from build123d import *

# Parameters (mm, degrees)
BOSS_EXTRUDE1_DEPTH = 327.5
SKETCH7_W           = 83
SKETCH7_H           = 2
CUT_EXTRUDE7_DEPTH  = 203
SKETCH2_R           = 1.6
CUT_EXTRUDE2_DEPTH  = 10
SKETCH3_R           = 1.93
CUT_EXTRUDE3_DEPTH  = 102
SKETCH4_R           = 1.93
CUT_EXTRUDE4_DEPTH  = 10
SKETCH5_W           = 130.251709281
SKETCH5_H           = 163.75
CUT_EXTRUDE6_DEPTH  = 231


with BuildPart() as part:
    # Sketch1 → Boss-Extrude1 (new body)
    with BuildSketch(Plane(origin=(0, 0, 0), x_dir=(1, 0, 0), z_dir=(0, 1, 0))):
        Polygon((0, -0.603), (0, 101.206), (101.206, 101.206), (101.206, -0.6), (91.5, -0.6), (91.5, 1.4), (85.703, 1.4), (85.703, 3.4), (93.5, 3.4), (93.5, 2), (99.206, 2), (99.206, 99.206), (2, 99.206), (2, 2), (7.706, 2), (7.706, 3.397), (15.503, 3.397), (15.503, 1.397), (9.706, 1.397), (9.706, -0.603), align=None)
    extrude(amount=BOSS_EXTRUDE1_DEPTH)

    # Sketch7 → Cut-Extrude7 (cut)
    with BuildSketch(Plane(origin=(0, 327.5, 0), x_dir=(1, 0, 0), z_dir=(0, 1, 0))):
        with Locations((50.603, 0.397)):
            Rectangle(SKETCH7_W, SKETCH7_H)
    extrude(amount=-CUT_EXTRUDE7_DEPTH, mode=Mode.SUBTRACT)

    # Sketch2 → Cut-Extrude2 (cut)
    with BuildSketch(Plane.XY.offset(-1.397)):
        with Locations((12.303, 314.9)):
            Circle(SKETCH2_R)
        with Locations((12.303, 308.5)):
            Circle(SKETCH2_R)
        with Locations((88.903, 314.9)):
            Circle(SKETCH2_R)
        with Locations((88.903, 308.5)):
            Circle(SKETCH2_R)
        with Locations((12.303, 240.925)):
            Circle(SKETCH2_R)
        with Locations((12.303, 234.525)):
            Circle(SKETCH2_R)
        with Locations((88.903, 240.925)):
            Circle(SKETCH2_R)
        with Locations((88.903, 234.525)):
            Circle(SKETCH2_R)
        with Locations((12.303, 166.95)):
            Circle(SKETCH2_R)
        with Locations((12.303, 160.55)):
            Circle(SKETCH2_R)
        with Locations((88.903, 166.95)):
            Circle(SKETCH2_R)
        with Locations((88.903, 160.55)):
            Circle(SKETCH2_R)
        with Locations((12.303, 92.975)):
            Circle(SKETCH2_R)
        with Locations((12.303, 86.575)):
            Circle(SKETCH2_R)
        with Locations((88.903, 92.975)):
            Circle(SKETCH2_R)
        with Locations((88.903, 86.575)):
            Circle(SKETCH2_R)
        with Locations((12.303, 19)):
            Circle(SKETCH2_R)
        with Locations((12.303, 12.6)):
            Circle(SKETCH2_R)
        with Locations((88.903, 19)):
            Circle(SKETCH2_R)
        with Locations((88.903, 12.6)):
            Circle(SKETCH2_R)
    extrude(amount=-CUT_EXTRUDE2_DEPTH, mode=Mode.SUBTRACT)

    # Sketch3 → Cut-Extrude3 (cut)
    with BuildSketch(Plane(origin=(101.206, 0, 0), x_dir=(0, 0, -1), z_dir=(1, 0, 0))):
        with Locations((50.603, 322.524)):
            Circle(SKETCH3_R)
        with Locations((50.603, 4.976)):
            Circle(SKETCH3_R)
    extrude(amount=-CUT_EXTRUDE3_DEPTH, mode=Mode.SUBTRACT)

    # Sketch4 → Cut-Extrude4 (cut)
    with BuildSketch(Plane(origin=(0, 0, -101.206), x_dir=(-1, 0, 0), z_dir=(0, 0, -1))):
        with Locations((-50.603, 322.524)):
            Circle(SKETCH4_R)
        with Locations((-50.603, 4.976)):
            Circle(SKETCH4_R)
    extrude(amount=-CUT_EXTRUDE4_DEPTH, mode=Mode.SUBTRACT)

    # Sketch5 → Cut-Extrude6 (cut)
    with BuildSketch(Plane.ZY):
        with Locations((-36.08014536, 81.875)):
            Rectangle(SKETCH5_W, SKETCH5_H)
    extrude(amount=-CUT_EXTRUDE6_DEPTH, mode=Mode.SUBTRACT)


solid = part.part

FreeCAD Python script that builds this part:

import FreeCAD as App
import Part
import Sketcher

V = App.Vector

doc = App.newDocument("Part")
params = doc.addObject("Spreadsheet::Sheet", "Params")
for row, (alias, value) in enumerate([
    ("sketch1_height", "2 mm"),
    ("sketch1_height2", "1.4 mm"),
    ("pad1_length", "327.5 mm"),
    ("sketch2_width", "83 mm"),
    ("sketch2_height", "2 mm"),
    ("pocket1_length", "203 mm"),
    ("sketch3_diameter", "3.2 mm"),
    ("pocket2_length", "10 mm"),
    ("sketch4_diameter", "3.86 mm"),
    ("pocket3_length", "102 mm"),
    ("sketch5_diameter", "3.86 mm"),
    ("pocket4_length", "10 mm"),
    ("sketch6_width", "163.75 mm"),
    ("pocket5_length", "231 mm"),
], start=1):
    params.set(f"A{row}", alias)
    params.set(f"B{row}", "=" + value)
    params.setAlias(f"B{row}", alias)

body = doc.addObject("PartDesign::Body", "Body")

# Sketch on XZ plane
sketch1 = body.newObject("Sketcher::SketchObject", "Sketch")
sketch1.AttachmentSupport = (doc.getObject("XZ_Plane"), [""])
sketch1.MapMode = "FlatFace"
sketch1.addGeometry([
    Part.LineSegment(V(0, -101.206, 0), V(0, 0.603, 0)),  # 0
    Part.LineSegment(V(0, 0.603, 0), V(9.706, 0.603, 0)),  # 1
    Part.LineSegment(V(9.706, 0.603, 0), V(9.706, -1.397, 0)),  # 2
    Part.LineSegment(V(9.706, -1.397, 0), V(15.503, -1.397, 0)),  # 3
    Part.LineSegment(V(15.503, -1.397, 0), V(15.503, -3.397, 0)),  # 4
    Part.LineSegment(V(15.503, -3.397, 0), V(7.706, -3.397, 0)),  # 5
    Part.LineSegment(V(7.706, -3.397, 0), V(7.706, -2, 0)),  # 6
    Part.LineSegment(V(7.706, -2, 0), V(2, -2, 0)),  # 7
    Part.LineSegment(V(2, -2, 0), V(2, -99.206, 0)),  # 8
    Part.LineSegment(V(2, -99.206, 0), V(99.206, -99.206, 0)),  # 9
    Part.LineSegment(V(99.206, -99.206, 0), V(99.206, -2, 0)),  # 10
    Part.LineSegment(V(99.206, -2, 0), V(93.5, -2, 0)),  # 11
    Part.LineSegment(V(93.5, -2, 0), V(93.5, -3.4, 0)),  # 12
    Part.LineSegment(V(93.5, -3.4, 0), V(85.703, -3.4, 0)),  # 13
    Part.LineSegment(V(85.703, -3.4, 0), V(85.703, -1.4, 0)),  # 14
    Part.LineSegment(V(85.703, -1.4, 0), V(91.5, -1.4, 0)),  # 15
    Part.LineSegment(V(91.5, -1.4, 0), V(91.5, 0.6, 0)),  # 16
    Part.LineSegment(V(91.5, 0.6, 0), V(101.206, 0.6, 0)),  # 17
    Part.LineSegment(V(101.206, 0.6, 0), V(101.206, -101.206, 0)),  # 18
    Part.LineSegment(V(101.206, -101.206, 0), V(0, -101.206, 0)),  # 19
], False)
sketch1.addConstraint([
    Sketcher.Constraint("Coincident", 0, 2, 1, 1),
    Sketcher.Constraint("Coincident", 1, 2, 2, 1),
    Sketcher.Constraint("Coincident", 2, 2, 3, 1),
    Sketcher.Constraint("Coincident", 3, 2, 4, 1),
    Sketcher.Constraint("Coincident", 4, 2, 5, 1),
    Sketcher.Constraint("Coincident", 5, 2, 6, 1),
    Sketcher.Constraint("Coincident", 6, 2, 7, 1),
    Sketcher.Constraint("Coincident", 7, 2, 8, 1),
    Sketcher.Constraint("Coincident", 8, 2, 9, 1),
    Sketcher.Constraint("Coincident", 9, 2, 10, 1),
    Sketcher.Constraint("Coincident", 10, 2, 11, 1),
    Sketcher.Constraint("Coincident", 11, 2, 12, 1),
    Sketcher.Constraint("Coincident", 12, 2, 13, 1),
    Sketcher.Constraint("Coincident", 13, 2, 14, 1),
    Sketcher.Constraint("Coincident", 14, 2, 15, 1),
    Sketcher.Constraint("Coincident", 15, 2, 16, 1),
    Sketcher.Constraint("Coincident", 16, 2, 17, 1),
    Sketcher.Constraint("Coincident", 17, 2, 18, 1),
    Sketcher.Constraint("Coincident", 18, 2, 19, 1),
    Sketcher.Constraint("Coincident", 19, 2, 0, 1),
    Sketcher.Constraint("Vertical", 0),
    Sketcher.Constraint("Horizontal", 1),
    Sketcher.Constraint("Vertical", 2),
    Sketcher.Constraint("Horizontal", 3),
    Sketcher.Constraint("Vertical", 4),
    Sketcher.Constraint("Horizontal", 5),
    Sketcher.Constraint("Vertical", 6),
    Sketcher.Constraint("Horizontal", 7),
    Sketcher.Constraint("Vertical", 8),
    Sketcher.Constraint("Horizontal", 9),
    Sketcher.Constraint("Vertical", 10),
    Sketcher.Constraint("Horizontal", 11),
    Sketcher.Constraint("Vertical", 12),
    Sketcher.Constraint("Horizontal", 13),
    Sketcher.Constraint("Vertical", 14),
    Sketcher.Constraint("Horizontal", 15),
    Sketcher.Constraint("Vertical", 16),
    Sketcher.Constraint("Horizontal", 17),
    Sketcher.Constraint("Vertical", 18),
    Sketcher.Constraint("Horizontal", 19),
    Sketcher.Constraint("PointOnObject", 0, 2, -2),
    Sketcher.Constraint("Horizontal", 7, 2, 10, 2),
    Sketcher.Constraint("Equal", 7, 11),
    Sketcher.Constraint("Equal", 5, 13),
    Sketcher.Constraint("Equal", 3, 15),
    Sketcher.Constraint("Equal", 1, 17),
    Sketcher.Constraint("Equal", 2, 4),
    Sketcher.Constraint("Equal", 9, 8),
    Sketcher.Constraint("Equal", 4, 14),
    Sketcher.Constraint("Equal", 14, 16),
    Sketcher.Constraint("DistanceY", 2, 2, 2, 1, 2.0),
    Sketcher.Constraint("DistanceY", 12, 2, 12, 1, 1.4),
    Sketcher.Constraint("DistanceY", 6, 2, -1, 1, 2.0),
    Sketcher.Constraint("DistanceX", -1, 1, 7, 2, 2.0),
    Sketcher.Constraint("DistanceX", 5, 2, 2, 2, 2.0),
    Sketcher.Constraint("DistanceY", 18, 2, 9, 2, 2.0),
    Sketcher.Constraint("DistanceX", -1, 1, 11, 2, 93.5),
    Sketcher.Constraint("DistanceX", 4, 2, 13, 2, 70.2),
    Sketcher.Constraint("DistanceX", 1, 1, 1, 2, 9.706),
    Sketcher.Constraint("DistanceY", 0, 1, 0, 2, 101.809),
])
sketch1.setExpression("Constraints[50]", "Params.sketch1_height")
sketch1.setExpression("Constraints[51]", "Params.sketch1_height2")
pad1 = body.newObject("PartDesign::Pad", "Pad")
pad1.Profile = sketch1
pad1.setExpression("Length", "Params.pad1_length")
pad1.Reversed = True

# Sketch on XZ plane
sketch2 = body.newObject("Sketcher::SketchObject", "Sketch001")
sketch2.AttachmentSupport = (doc.getObject("XZ_Plane"), [""])
sketch2.MapMode = "FlatFace"
sketch2.AttachmentOffset = App.Placement(V(0, 0, -327.5), App.Rotation())
sketch2.addGeometry([
    Part.LineSegment(V(9.103, -1.397, 0), V(9.103, 0.603, 0)),
    Part.LineSegment(V(9.103, 0.603, 0), V(92.103, 0.603, 0)),
    Part.LineSegment(V(92.103, 0.603, 0), V(92.103, -1.397, 0)),
    Part.LineSegment(V(92.103, -1.397, 0), V(9.103, -1.397, 0)),
], False)
sketch2.addConstraint([
    Sketcher.Constraint("Coincident", 0, 2, 1, 1),
    Sketcher.Constraint("Coincident", 1, 2, 2, 1),
    Sketcher.Constraint("Coincident", 2, 2, 3, 1),
    Sketcher.Constraint("Coincident", 3, 2, 0, 1),
    Sketcher.Constraint("Vertical", 0),
    Sketcher.Constraint("Horizontal", 1),
    Sketcher.Constraint("Vertical", 2),
    Sketcher.Constraint("Horizontal", 3),
    Sketcher.Constraint("DistanceX", 1, 1, 1, 2, 83.0),
    Sketcher.Constraint("DistanceY", 0, 1, 0, 2, 2.0),
    Sketcher.Constraint("DistanceX", -1, 1, 0, 2, 9.103),
    Sketcher.Constraint("DistanceY", -1, 1, 0, 2, 0.603),
])
sketch2.setExpression("Constraints[8]", "Params.sketch2_width")
sketch2.setExpression("Constraints[9]", "Params.sketch2_height")
pocket1 = body.newObject("PartDesign::Pocket", "Pocket")
pocket1.Profile = sketch2
pocket1.setExpression("Length", "Params.pocket1_length")
pocket1.Reversed = True

# Sketch on XY plane
sketch3 = body.newObject("Sketcher::SketchObject", "Sketch002")
sketch3.AttachmentSupport = (doc.getObject("XY_Plane"), [""])
sketch3.MapMode = "FlatFace"
sketch3.AttachmentOffset = App.Placement(V(0, 0, -1.397), App.Rotation())
sketch3.addGeometry([
    Part.Circle(V(12.303, 314.9, 0), V(0, 0, 1), 1.6),  # 0
    Part.Circle(V(12.303, 308.5, 0), V(0, 0, 1), 1.6),  # 1
    Part.Circle(V(88.903, 314.9, 0), V(0, 0, 1), 1.6),  # 2
    Part.Circle(V(88.903, 308.5, 0), V(0, 0, 1), 1.6),  # 3
    Part.Circle(V(12.303, 240.925, 0), V(0, 0, 1), 1.6),  # 4
    Part.Circle(V(12.303, 234.525, 0), V(0, 0, 1), 1.6),  # 5
    Part.Circle(V(88.903, 240.925, 0), V(0, 0, 1), 1.6),  # 6
    Part.Circle(V(88.903, 234.525, 0), V(0, 0, 1), 1.6),  # 7
    Part.Circle(V(12.303, 166.95, 0), V(0, 0, 1), 1.6),  # 8
    Part.Circle(V(12.303, 160.55, 0), V(0, 0, 1), 1.6),  # 9
    Part.Circle(V(88.903, 166.95, 0), V(0, 0, 1), 1.6),  # 10
    Part.Circle(V(88.903, 160.55, 0), V(0, 0, 1), 1.6),  # 11
    Part.Circle(V(12.303, 92.975, 0), V(0, 0, 1), 1.6),  # 12
    Part.Circle(V(12.303, 86.575, 0), V(0, 0, 1), 1.6),  # 13
    Part.Circle(V(88.903, 92.975, 0), V(0, 0, 1), 1.6),  # 14
    Part.Circle(V(88.903, 86.575, 0), V(0, 0, 1), 1.6),  # 15
    Part.Circle(V(12.303, 19, 0), V(0, 0, 1), 1.6),  # 16
    Part.Circle(V(12.303, 12.6, 0), V(0, 0, 1), 1.6),  # 17
    Part.Circle(V(88.903, 19, 0), V(0, 0, 1), 1.6),  # 18
    Part.Circle(V(88.903, 12.6, 0), V(0, 0, 1), 1.6),  # 19
], False)
sketch3.addConstraint([
    Sketcher.Constraint("Equal", 0, 1),
    Sketcher.Constraint("Equal", 1, 2),
    Sketcher.Constraint("Equal", 2, 3),
    Sketcher.Constraint("Equal", 3, 4),
    Sketcher.Constraint("Equal", 4, 5),
    Sketcher.Constraint("Equal", 5, 6),
    Sketcher.Constraint("Equal", 6, 7),
    Sketcher.Constraint("Equal", 7, 8),
    Sketcher.Constraint("Equal", 8, 9),
    Sketcher.Constraint("Equal", 9, 10),
    Sketcher.Constraint("Equal", 10, 11),
    Sketcher.Constraint("Equal", 11, 12),
    Sketcher.Constraint("Equal", 12, 13),
    Sketcher.Constraint("Equal", 13, 14),
    Sketcher.Constraint("Equal", 14, 15),
    Sketcher.Constraint("Equal", 15, 16),
    Sketcher.Constraint("Equal", 16, 17),
    Sketcher.Constraint("Equal", 17, 18),
    Sketcher.Constraint("Equal", 18, 19),
    Sketcher.Constraint("Horizontal", 0, 3, 2, 3),
    Sketcher.Constraint("Horizontal", 1, 3, 3, 3),
    Sketcher.Constraint("Horizontal", 4, 3, 6, 3),
    Sketcher.Constraint("Horizontal", 5, 3, 7, 3),
    Sketcher.Constraint("Horizontal", 8, 3, 10, 3),
    Sketcher.Constraint("Horizontal", 9, 3, 11, 3),
    Sketcher.Constraint("Horizontal", 12, 3, 14, 3),
    Sketcher.Constraint("Horizontal", 13, 3, 15, 3),
    Sketcher.Constraint("Horizontal", 16, 3, 18, 3),
    Sketcher.Constraint("Horizontal", 17, 3, 19, 3),
    Sketcher.Constraint("Vertical", 0, 3, 1, 3),
    Sketcher.Constraint("Vertical", 2, 3, 3, 3),
    Sketcher.Constraint("Vertical", 1, 3, 4, 3),
    Sketcher.Constraint("Vertical", 4, 3, 5, 3),
    Sketcher.Constraint("Vertical", 3, 3, 6, 3),
    Sketcher.Constraint("Vertical", 6, 3, 7, 3),
    Sketcher.Constraint("Vertical", 5, 3, 8, 3),
    Sketcher.Constraint("Vertical", 8, 3, 9, 3),
    Sketcher.Constraint("Vertical", 7, 3, 10, 3),
    Sketcher.Constraint("Vertical", 10, 3, 11, 3),
    Sketcher.Constraint("Vertical", 9, 3, 12, 3),
    Sketcher.Constraint("Vertical", 12, 3, 13, 3),
    Sketcher.Constraint("Vertical", 11, 3, 14, 3),
    Sketcher.Constraint("Vertical", 14, 3, 15, 3),
    Sketcher.Constraint("Vertical", 13, 3, 16, 3),
    Sketcher.Constraint("Vertical", 16, 3, 17, 3),
    Sketcher.Constraint("Vertical", 15, 3, 18, 3),
    Sketcher.Constraint("Vertical", 18, 3, 19, 3),
    Sketcher.Constraint("Diameter", 0, 3.2),
    Sketcher.Constraint("DistanceY", -1, 1, 16, 3, 19.0),
    Sketcher.Constraint("DistanceY", -1, 1, 0, 3, 314.9),
    Sketcher.Constraint("DistanceY", -1, 1, 1, 3, 308.5),
    Sketcher.Constraint("DistanceY", -1, 1, 17, 3, 12.6),
    Sketcher.Constraint("DistanceX", 0, 3, 2, 3, 76.6),
    Sketcher.Constraint("DistanceY", 5, 3, 4, 3, 6.4),
    Sketcher.Constraint("DistanceY", 9, 3, 8, 3, 6.4),
    Sketcher.Constraint("DistanceY", 13, 3, 12, 3, 6.4),
    Sketcher.Constraint("DistanceY", -1, 1, 8, 3, 166.95),
    Sketcher.Constraint("DistanceY", 12, 3, 5, 3, 141.55),
    Sketcher.Constraint("DistanceX", -1, 1, 0, 3, 12.303),
    Sketcher.Constraint("DistanceY", -1, 1, 4, 3, 240.925),
])
sketch3.setExpression("Constraints[47]", "Params.sketch3_diameter")
pocket2 = body.newObject("PartDesign::Pocket", "Pocket001")
pocket2.Profile = sketch3
pocket2.setExpression("Length", "Params.pocket2_length")

# Sketch on YZ plane
sketch4 = body.newObject("Sketcher::SketchObject", "Sketch003")
sketch4.AttachmentSupport = (doc.getObject("YZ_Plane"), [""])
sketch4.MapMode = "FlatFace"
sketch4.AttachmentOffset = App.Placement(V(0, 0, 101.206), App.Rotation())
sketch4.addGeometry([
    Part.Circle(V(322.524, -50.603, 0), V(0, 0, 1), 1.93),
    Part.Circle(V(4.976, -50.603, 0), V(0, 0, 1), 1.93),
], False)
sketch4.addConstraint([
    Sketcher.Constraint("Equal", 0, 1),
    Sketcher.Constraint("Horizontal", 0, 3, 1, 3),
    Sketcher.Constraint("Diameter", 0, 3.86),
    Sketcher.Constraint("DistanceX", -1, 1, 0, 3, 322.524),
    Sketcher.Constraint("DistanceY", 0, 3, -1, 1, 50.603),
    Sketcher.Constraint("DistanceX", -1, 1, 1, 3, 4.976),
])
sketch4.setExpression("Constraints[2]", "Params.sketch4_diameter")
pocket3 = body.newObject("PartDesign::Pocket", "Pocket002")
pocket3.Profile = sketch4
pocket3.setExpression("Length", "Params.pocket3_length")

# Sketch on XY plane
sketch5 = body.newObject("Sketcher::SketchObject", "Sketch004")
sketch5.AttachmentSupport = (doc.getObject("XY_Plane"), [""])
sketch5.MapMode = "FlatFace"
sketch5.AttachmentOffset = App.Placement(V(0, 0, -101.206), App.Rotation())
sketch5.addGeometry([
    Part.Circle(V(50.603, 322.524, 0), V(0, 0, 1), 1.93),
    Part.Circle(V(50.603, 4.976, 0), V(0, 0, 1), 1.93),
], False)
sketch5.addConstraint([
    Sketcher.Constraint("Equal", 0, 1),
    Sketcher.Constraint("Vertical", 0, 3, 1, 3),
    Sketcher.Constraint("Diameter", 0, 3.86),
    Sketcher.Constraint("DistanceX", -1, 1, 0, 3, 50.603),
    Sketcher.Constraint("DistanceY", -1, 1, 0, 3, 322.524),
    Sketcher.Constraint("DistanceY", -1, 1, 1, 3, 4.976),
])
sketch5.setExpression("Constraints[2]", "Params.sketch5_diameter")
pocket4 = body.newObject("PartDesign::Pocket", "Pocket003")
pocket4.Profile = sketch5
pocket4.setExpression("Length", "Params.pocket4_length")
pocket4.Reversed = True

# Sketch on YZ plane
sketch6 = body.newObject("Sketcher::SketchObject", "Sketch005")
sketch6.AttachmentSupport = (doc.getObject("YZ_Plane"), [""])
sketch6.MapMode = "FlatFace"
sketch6.addGeometry([
    Part.LineSegment(V(163.75, -101.206, 0), V(0, -101.206, 0)),
    Part.LineSegment(V(0, -101.206, 0), V(0, 29.045709, 0)),
    Part.LineSegment(V(0, 29.045709, 0), V(163.75, 29.045709, 0)),
    Part.LineSegment(V(163.75, 29.045709, 0), V(163.75, -101.206, 0)),
], False)
sketch6.addConstraint([
    Sketcher.Constraint("Coincident", 0, 2, 1, 1),
    Sketcher.Constraint("Coincident", 1, 2, 2, 1),
    Sketcher.Constraint("Coincident", 2, 2, 3, 1),
    Sketcher.Constraint("Coincident", 3, 2, 0, 1),
    Sketcher.Constraint("Horizontal", 0),
    Sketcher.Constraint("Vertical", 1),
    Sketcher.Constraint("Horizontal", 2),
    Sketcher.Constraint("Vertical", 3),
    Sketcher.Constraint("PointOnObject", 0, 2, -2),
    Sketcher.Constraint("DistanceX", 0, 2, 0, 1, 163.75),
    Sketcher.Constraint("DistanceY", 0, 2, -1, 1, 101.206),
    Sketcher.Constraint("DistanceY", 1, 1, 1, 2, 130.251709),
])
sketch6.setExpression("Constraints[9]", "Params.sketch6_width")
pocket5 = body.newObject("PartDesign::Pocket", "Pocket004")
pocket5.Profile = sketch6
pocket5.setExpression("Length", "Params.pocket5_length")
pocket5.Reversed = True

doc.recompute()
